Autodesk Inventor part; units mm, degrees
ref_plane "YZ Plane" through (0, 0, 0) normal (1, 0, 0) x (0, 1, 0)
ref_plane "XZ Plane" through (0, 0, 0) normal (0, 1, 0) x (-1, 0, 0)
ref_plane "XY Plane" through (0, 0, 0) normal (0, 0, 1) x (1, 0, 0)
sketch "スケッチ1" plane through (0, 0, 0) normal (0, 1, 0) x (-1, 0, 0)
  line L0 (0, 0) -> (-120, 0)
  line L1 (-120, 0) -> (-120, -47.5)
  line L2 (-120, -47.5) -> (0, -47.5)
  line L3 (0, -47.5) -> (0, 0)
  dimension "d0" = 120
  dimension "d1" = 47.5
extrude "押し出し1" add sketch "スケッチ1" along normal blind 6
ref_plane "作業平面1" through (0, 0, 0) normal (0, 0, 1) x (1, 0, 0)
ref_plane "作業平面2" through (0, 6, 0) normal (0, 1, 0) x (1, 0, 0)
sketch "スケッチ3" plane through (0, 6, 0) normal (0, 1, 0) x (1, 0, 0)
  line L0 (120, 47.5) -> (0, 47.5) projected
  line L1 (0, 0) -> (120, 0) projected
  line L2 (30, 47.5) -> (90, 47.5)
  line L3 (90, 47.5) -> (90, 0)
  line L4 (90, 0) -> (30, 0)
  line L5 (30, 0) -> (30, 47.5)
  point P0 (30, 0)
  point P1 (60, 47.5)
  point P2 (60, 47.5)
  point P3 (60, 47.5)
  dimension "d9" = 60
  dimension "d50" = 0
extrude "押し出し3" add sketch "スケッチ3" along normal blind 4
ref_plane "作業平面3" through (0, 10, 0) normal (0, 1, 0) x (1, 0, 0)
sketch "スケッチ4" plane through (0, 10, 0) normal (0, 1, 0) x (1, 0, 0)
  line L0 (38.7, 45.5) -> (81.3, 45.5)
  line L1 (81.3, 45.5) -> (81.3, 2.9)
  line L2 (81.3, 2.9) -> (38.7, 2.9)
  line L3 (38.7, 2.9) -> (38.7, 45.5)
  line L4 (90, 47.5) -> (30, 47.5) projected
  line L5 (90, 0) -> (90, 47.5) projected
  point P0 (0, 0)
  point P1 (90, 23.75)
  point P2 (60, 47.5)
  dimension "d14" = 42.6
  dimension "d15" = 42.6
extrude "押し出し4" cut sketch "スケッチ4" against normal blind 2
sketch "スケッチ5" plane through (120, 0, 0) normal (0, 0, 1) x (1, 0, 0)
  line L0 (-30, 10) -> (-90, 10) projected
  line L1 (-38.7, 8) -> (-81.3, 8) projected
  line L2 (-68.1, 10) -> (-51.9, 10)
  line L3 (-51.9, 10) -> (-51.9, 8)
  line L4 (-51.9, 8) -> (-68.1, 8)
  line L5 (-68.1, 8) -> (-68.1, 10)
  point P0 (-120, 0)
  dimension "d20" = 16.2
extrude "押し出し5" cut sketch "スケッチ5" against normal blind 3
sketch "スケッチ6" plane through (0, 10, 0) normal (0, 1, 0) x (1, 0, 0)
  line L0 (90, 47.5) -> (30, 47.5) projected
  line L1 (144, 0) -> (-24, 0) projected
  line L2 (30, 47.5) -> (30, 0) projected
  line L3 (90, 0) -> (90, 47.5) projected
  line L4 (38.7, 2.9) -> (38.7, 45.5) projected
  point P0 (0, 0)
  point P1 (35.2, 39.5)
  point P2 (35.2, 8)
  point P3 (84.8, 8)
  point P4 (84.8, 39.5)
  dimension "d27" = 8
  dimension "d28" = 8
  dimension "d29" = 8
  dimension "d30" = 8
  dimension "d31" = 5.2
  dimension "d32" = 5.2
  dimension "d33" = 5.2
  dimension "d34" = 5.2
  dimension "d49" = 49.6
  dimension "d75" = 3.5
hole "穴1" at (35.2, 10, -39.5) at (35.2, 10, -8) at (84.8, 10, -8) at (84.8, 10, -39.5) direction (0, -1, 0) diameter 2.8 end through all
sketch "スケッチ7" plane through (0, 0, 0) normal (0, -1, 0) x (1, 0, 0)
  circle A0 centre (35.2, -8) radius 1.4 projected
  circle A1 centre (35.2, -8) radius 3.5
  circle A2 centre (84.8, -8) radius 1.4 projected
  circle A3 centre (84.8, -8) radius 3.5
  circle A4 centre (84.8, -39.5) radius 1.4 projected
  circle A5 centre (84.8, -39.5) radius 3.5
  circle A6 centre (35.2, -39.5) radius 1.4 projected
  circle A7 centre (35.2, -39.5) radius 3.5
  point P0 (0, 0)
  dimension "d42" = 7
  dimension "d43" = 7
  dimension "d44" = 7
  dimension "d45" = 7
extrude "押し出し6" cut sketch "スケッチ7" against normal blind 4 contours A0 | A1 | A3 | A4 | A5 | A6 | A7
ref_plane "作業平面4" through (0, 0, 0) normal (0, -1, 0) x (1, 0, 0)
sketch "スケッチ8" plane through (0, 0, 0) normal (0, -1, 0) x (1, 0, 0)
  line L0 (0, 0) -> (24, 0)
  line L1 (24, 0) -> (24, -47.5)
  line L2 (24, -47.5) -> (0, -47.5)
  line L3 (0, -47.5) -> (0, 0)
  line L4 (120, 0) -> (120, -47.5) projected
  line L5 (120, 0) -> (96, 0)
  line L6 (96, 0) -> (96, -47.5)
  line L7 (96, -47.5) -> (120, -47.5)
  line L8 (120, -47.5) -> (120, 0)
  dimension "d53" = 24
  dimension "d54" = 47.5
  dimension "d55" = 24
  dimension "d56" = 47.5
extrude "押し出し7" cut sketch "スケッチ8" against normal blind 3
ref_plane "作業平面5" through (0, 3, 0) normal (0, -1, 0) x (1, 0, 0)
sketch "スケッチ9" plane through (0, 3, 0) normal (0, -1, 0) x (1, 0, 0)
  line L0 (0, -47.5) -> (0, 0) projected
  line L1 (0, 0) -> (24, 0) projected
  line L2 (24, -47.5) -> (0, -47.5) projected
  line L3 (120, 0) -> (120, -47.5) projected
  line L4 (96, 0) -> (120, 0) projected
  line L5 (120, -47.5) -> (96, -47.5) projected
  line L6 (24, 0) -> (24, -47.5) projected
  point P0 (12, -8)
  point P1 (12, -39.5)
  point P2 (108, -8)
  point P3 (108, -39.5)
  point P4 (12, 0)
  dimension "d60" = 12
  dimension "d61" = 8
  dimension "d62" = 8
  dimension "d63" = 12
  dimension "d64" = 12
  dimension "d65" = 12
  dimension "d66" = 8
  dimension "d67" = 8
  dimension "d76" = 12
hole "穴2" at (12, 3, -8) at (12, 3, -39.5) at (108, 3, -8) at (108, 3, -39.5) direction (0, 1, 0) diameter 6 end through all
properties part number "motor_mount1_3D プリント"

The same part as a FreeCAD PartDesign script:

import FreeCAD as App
import Part
import Sketcher

V = App.Vector


def add_polygon(sketch, points):
    """Adds a closed chain of lines whose ends are joined by coincident constraints."""
    first, n = sketch.GeometryCount, len(points)
    for a, b in zip(points, points[1:] + points[:1]):
        sketch.addGeometry(Part.LineSegment(App.Vector(*a, 0), App.Vector(*b, 0)), False)
    for i in range(n):
        sketch.addConstraint(Sketcher.Constraint("Coincident", first + i, 2, first + (i + 1) % n, 1))

doc = App.newDocument("Part")
body = doc.addObject("PartDesign::Body", "Body")

# Sketch on XZ plane
sketch1 = doc.addObject("Sketcher::SketchObject", "Sketch")
body.addObject(sketch1)
sketch1.AttachmentSupport = (doc.XZ_Plane, [""])
sketch1.MapMode = "FlatFace"
add_polygon(sketch1, [(0, -47.5), (0, 0), (120, 0), (120, -47.5)])  # lines 0-3
sketch1.addConstraint(Sketcher.Constraint("Vertical", 0))
sketch1.addConstraint(Sketcher.Constraint("Horizontal", 1))
sketch1.addConstraint(Sketcher.Constraint("Vertical", 2))
sketch1.addConstraint(Sketcher.Constraint("Horizontal", 3))
sketch1.addConstraint(Sketcher.Constraint("Coincident", 0, 2, -1, 1))
sketch1.addConstraint(Sketcher.Constraint("DistanceX", 1, 1, 1, 2, 120.0))
sketch1.addConstraint(Sketcher.Constraint("DistanceY", 0, 1, 0, 2, 47.5))
pad1 = doc.addObject("PartDesign::Pad", "Pad")
body.addObject(pad1)
pad1.Profile = sketch1
pad1.Length = 6
pad1.Reversed = True

# Sketch on XZ plane
sketch2 = doc.addObject("Sketcher::SketchObject", "Sketch001")
body.addObject(sketch2)
sketch2.AttachmentSupport = (doc.XZ_Plane, [""])
sketch2.MapMode = "FlatFace"
sketch2.AttachmentOffset = App.Placement(V(0, 0, -6), App.Rotation())
add_polygon(sketch2, [(90, 0), (90, -47.5), (30, -47.5), (30, 0)])  # lines 0-3
sketch2.addConstraint(Sketcher.Constraint("Vertical", 0))
sketch2.addConstraint(Sketcher.Constraint("Horizontal", 1))
sketch2.addConstraint(Sketcher.Constraint("Vertical", 2))
sketch2.addConstraint(Sketcher.Constraint("Horizontal", 3))
sketch2.addConstraint(Sketcher.Constraint("PointOnObject", 2, 2, -1))
sketch2.addConstraint(Sketcher.Constraint("DistanceX", 1, 2, 1, 1, 60.0))
sketch2.addConstraint(Sketcher.Constraint("DistanceY", 0, 2, 0, 1, 47.5))
sketch2.addConstraint(Sketcher.Constraint("DistanceX", -1, 1, 0, 2, 90.0))
pad2 = doc.addObject("PartDesign::Pad", "Pad001")
body.addObject(pad2)
pad2.Profile = sketch2
pad2.Length = 4
pad2.Reversed = True

# Sketch on XZ plane
sketch3 = doc.addObject("Sketcher::SketchObject", "Sketch002")
body.addObject(sketch3)
sketch3.AttachmentSupport = (doc.XZ_Plane, [""])
sketch3.MapMode = "FlatFace"
sketch3.AttachmentOffset = App.Placement(V(0, 0, -10), App.Rotation())
add_polygon(sketch3, [(81.3, -45.5), (38.7, -45.5), (38.7, -2.9), (81.3, -2.9)])  # lines 0-3
sketch3.addConstraint(Sketcher.Constraint("Horizontal", 0))
sketch3.addConstraint(Sketcher.Constraint("Vertical", 1))
sketch3.addConstraint(Sketcher.Constraint("Horizontal", 2))
sketch3.addConstraint(Sketcher.Constraint("Vertical", 3))
sketch3.addConstraint(Sketcher.Constraint("Equal", 2, 1))
sketch3.addConstraint(Sketcher.Constraint("DistanceX", 0, 2, 0, 1, 42.6))
sketch3.addConstraint(Sketcher.Constraint("DistanceX", -1, 1, 0, 2, 38.7))
sketch3.addConstraint(Sketcher.Constraint("DistanceY", 0, 2, -1, 1, 45.5))
pocket1 = doc.addObject("PartDesign::Pocket", "Pocket")
body.addObject(pocket1)
pocket1.Profile = sketch3
pocket1.Length = 2
pocket1.Reversed = True

# Sketch on XY plane
sketch4 = doc.addObject("Sketcher::SketchObject", "Sketch003")
body.addObject(sketch4)
sketch4.AttachmentSupport = (doc.XY_Plane, [""])
sketch4.MapMode = "FlatFace"
add_polygon(sketch4, [(68.1, 8), (68.1, 10), (51.9, 10), (51.9, 8)])  # lines 0-3
sketch4.addConstraint(Sketcher.Constraint("Vertical", 0))
sketch4.addConstraint(Sketcher.Constraint("Horizontal", 1))
sketch4.addConstraint(Sketcher.Constraint("Vertical", 2))
sketch4.addConstraint(Sketcher.Constraint("Horizontal", 3))
sketch4.addConstraint(Sketcher.Constraint("DistanceX", 1, 2, 1, 1, 16.2))
sketch4.addConstraint(Sketcher.Constraint("DistanceY", 0, 1, 0, 2, 2.0))
sketch4.addConstraint(Sketcher.Constraint("DistanceY", -1, 1, 0, 2, 10.0))
sketch4.addConstraint(Sketcher.Constraint("DistanceX", -1, 1, 0, 2, 68.1))
pocket2 = doc.addObject("PartDesign::Pocket", "Pocket001")
body.addObject(pocket2)
pocket2.Profile = sketch4
pocket2.Length = 3

# Sketch on XZ plane
sketch5 = doc.addObject("Sketcher::SketchObject", "Sketch004")
body.addObject(sketch5)
sketch5.AttachmentSupport = (doc.XZ_Plane, [""])
sketch5.MapMode = "FlatFace"
sketch5.AttachmentOffset = App.Placement(V(0, 0, -10), App.Rotation())
sketch5.addGeometry(Part.Circle(V(35.2, -39.5, 0), V(0, 0, 1), 1.4), False)
sketch5.addGeometry(Part.Circle(V(35.2, -8, 0), V(0, 0, 1), 1.4), False)
sketch5.addGeometry(Part.Circle(V(84.8, -8, 0), V(0, 0, 1), 1.4), False)
sketch5.addGeometry(Part.Circle(V(84.8, -39.5, 0), V(0, 0, 1), 1.4), False)
sketch5.addConstraint(Sketcher.Constraint("Equal", 0, 1))
sketch5.addConstraint(Sketcher.Constraint("Equal", 1, 2))
sketch5.addConstraint(Sketcher.Constraint("Equal", 2, 3))
sketch5.addConstraint(Sketcher.Constraint("Horizontal", 1, 3, 2, 3))
sketch5.addConstraint(Sketcher.Constraint("Horizontal", 0, 3, 3, 3))
sketch5.addConstraint(Sketcher.Constraint("Vertical", 0, 3, 1, 3))
sketch5.addConstraint(Sketcher.Constraint("Vertical", 2, 3, 3, 3))
sketch5.addConstraint(Sketcher.Constraint("Diameter", 0, 2.8))
sketch5.addConstraint(Sketcher.Constraint("DistanceY", 1, 3, -1, 1, 8.0))
sketch5.addConstraint(Sketcher.Constraint("DistanceX", -1, 1, 0, 3, 35.2))
sketch5.addConstraint(Sketcher.Constraint("DistanceY", 0, 3, -1, 1, 39.5))
sketch5.addConstraint(Sketcher.Constraint("DistanceX", -1, 1, 2, 3, 84.8))
doc.recompute()
hole = doc.addObject("PartDesign::Hole", "Hole")
body.addObject(hole)
hole.Profile = sketch5
hole.ThreadType = "None"
hole.Diameter = 2.8
hole.DepthType = "ThroughAll"
hole.Reversed = True

# Sketch on XZ plane
sketch6 = doc.addObject("Sketcher::SketchObject", "Sketch005")
body.addObject(sketch6)
sketch6.AttachmentSupport = (doc.XZ_Plane, [""])
sketch6.MapMode = "FlatFace"
sketch6.addGeometry(Part.Circle(V(35.2, -8, 0), V(0, 0, 1), 3.5), False)
sketch6.addGeometry(Part.Circle(V(84.8, -8, 0), V(0, 0, 1), 3.5), False)
sketch6.addGeometry(Part.Circle(V(84.8, -8, 0), V(0, 0, 1), 1.4), False)
sketch6.addGeometry(Part.Circle(V(84.8, -39.5, 0), V(0, 0, 1), 3.5), False)
sketch6.addGeometry(Part.Circle(V(35.2, -39.5, 0), V(0, 0, 1), 3.5), False)
sketch6.addConstraint(Sketcher.Constraint("Coincident", 2, 3, 1, 3))
sketch6.addConstraint(Sketcher.Constraint("Equal", 0, 1))
sketch6.addConstraint(Sketcher.Constraint("Equal", 1, 3))
sketch6.addConstraint(Sketcher.Constraint("Equal", 3, 4))
sketch6.addConstraint(Sketcher.Constraint("Horizontal", 0, 3, 1, 3))
sketch6.addConstraint(Sketcher.Constraint("Horizontal", 3, 3, 4, 3))
sketch6.addConstraint(Sketcher.Constraint("Vertical", 2, 3, 3, 3))
sketch6.addConstraint(Sketcher.Constraint("Vertical", 0, 3, 4, 3))
sketch6.addConstraint(Sketcher.Constraint("Diameter", 0, 7.0))
sketch6.addConstraint(Sketcher.Constraint("Diameter", 2, 2.8))
sketch6.addConstraint(Sketcher.Constraint("DistanceY", 0, 3, -1, 1, 8.0))
sketch6.addConstraint(Sketcher.Constraint("DistanceX", -1, 1, 0, 3, 35.2))
sketch6.addConstraint(Sketcher.Constraint("DistanceX", -1, 1, 1, 3, 84.8))
sketch6.addConstraint(Sketcher.Constraint("DistanceY", 3, 3, -1, 1, 39.5))
pocket3 = doc.addObject("PartDesign::Pocket", "Pocket002")
body.addObject(pocket3)
pocket3.Profile = sketch6
pocket3.Length = 4

# Sketch on XZ plane
sketch7 = doc.addObject("Sketcher::SketchObject", "Sketch006")
body.addObject(sketch7)
sketch7.AttachmentSupport = (doc.XZ_Plane, [""])
sketch7.MapMode = "FlatFace"
add_polygon(sketch7, [(24, 0), (0, 0), (0, -47.5), (24, -47.5)])  # lines 0-3
add_polygon(sketch7, [(120, -47.5), (120, 0), (96, 0), (96, -47.5)])  # lines 4-7
sketch7.addConstraint(Sketcher.Constraint("Horizontal", 0))
sketch7.addConstraint(Sketcher.Constraint("Vertical", 1))
sketch7.addConstraint(Sketcher.Constraint("Horizontal", 2))
sketch7.addConstraint(Sketcher.Constraint("Vertical", 3))
sketch7.addConstraint(Sketcher.Constraint("Vertical", 4))
sketch7.addConstraint(Sketcher.Constraint("Horizontal", 5))
sketch7.addConstraint(Sketcher.Constraint("Vertical", 6))
sketch7.addConstraint(Sketcher.Constraint("Horizontal", 7))
sketch7.addConstraint(Sketcher.Constraint("Coincident", 0, 2, -1, 1))
sketch7.addConstraint(Sketcher.Constraint("PointOnObject", 4, 2, -1))
sketch7.addConstraint(Sketcher.Constraint("Horizontal", 2, 2, 6, 2))
sketch7.addConstraint(Sketcher.Constraint("Equal", 2, 5))
sketch7.addConstraint(Sketcher.Constraint("DistanceX", 0, 2, 0, 1, 24.0))
sketch7.addConstraint(Sketcher.Constraint("DistanceY", 1, 2, 1, 1, 47.5))
sketch7.addConstraint(Sketcher.Constraint("DistanceX", -1, 1, 4, 2, 120.0))
pocket4 = doc.addObject("PartDesign::Pocket", "Pocket003")
body.addObject(pocket4)
pocket4.Profile = sketch7
pocket4.Length = 3

# Sketch on XZ plane
sketch8 = doc.addObject("Sketcher::SketchObject", "Sketch007")
body.addObject(sketch8)
sketch8.AttachmentSupport = (doc.XZ_Plane, [""])
sketch8.MapMode = "FlatFace"
sketch8.AttachmentOffset = App.Placement(V(0, 0, -3), App.Rotation())
sketch8.addGeometry(Part.Circle(V(12, -8, 0), V(0, 0, 1), 3), False)
sketch8.addGeometry(Part.Circle(V(12, -39.5, 0), V(0, 0, 1), 3), False)
sketch8.addGeometry(Part.Circle(V(108, -8, 0), V(0, 0, 1), 3), False)
sketch8.addGeometry(Part.Circle(V(108, -39.5, 0), V(0, 0, 1), 3), False)
sketch8.addConstraint(Sketcher.Constraint("Equal", 0, 1))
sketch8.addConstraint(Sketcher.Constraint("Equal", 1, 2))
sketch8.addConstraint(Sketcher.Constraint("Equal", 2, 3))
sketch8.addConstraint(Sketcher.Constraint("Horizontal", 0, 3, 2, 3))
sketch8.addConstraint(Sketcher.Constraint("Horizontal", 1, 3, 3, 3))
sketch8.addConstraint(Sketcher.Constraint("Vertical", 0, 3, 1, 3))
sketch8.addConstraint(Sketcher.Constraint("Vertical", 2, 3, 3, 3))
sketch8.addConstraint(Sketcher.Constraint("Diameter", 0, 6.0))
sketch8.addConstraint(Sketcher.Constraint("DistanceX", -1, 1, 0, 3, 12.0))
sketch8.addConstraint(Sketcher.Constraint("DistanceY", 0, 3, -1, 1, 8.0))
sketch8.addConstraint(Sketcher.Constraint("DistanceX", -1, 1, 2, 3, 108.0))
sketch8.addConstraint(Sketcher.Constraint("DistanceY", 1, 3, -1, 1, 39.5))
doc.recompute()
hole2 = doc.addObject("PartDesign::Hole", "Hole001")
body.addObject(hole2)
hole2.Profile = sketch8
hole2.ThreadType = "None"
hole2.Diameter = 6
hole2.DepthType = "ThroughAll"

doc.recompute()
